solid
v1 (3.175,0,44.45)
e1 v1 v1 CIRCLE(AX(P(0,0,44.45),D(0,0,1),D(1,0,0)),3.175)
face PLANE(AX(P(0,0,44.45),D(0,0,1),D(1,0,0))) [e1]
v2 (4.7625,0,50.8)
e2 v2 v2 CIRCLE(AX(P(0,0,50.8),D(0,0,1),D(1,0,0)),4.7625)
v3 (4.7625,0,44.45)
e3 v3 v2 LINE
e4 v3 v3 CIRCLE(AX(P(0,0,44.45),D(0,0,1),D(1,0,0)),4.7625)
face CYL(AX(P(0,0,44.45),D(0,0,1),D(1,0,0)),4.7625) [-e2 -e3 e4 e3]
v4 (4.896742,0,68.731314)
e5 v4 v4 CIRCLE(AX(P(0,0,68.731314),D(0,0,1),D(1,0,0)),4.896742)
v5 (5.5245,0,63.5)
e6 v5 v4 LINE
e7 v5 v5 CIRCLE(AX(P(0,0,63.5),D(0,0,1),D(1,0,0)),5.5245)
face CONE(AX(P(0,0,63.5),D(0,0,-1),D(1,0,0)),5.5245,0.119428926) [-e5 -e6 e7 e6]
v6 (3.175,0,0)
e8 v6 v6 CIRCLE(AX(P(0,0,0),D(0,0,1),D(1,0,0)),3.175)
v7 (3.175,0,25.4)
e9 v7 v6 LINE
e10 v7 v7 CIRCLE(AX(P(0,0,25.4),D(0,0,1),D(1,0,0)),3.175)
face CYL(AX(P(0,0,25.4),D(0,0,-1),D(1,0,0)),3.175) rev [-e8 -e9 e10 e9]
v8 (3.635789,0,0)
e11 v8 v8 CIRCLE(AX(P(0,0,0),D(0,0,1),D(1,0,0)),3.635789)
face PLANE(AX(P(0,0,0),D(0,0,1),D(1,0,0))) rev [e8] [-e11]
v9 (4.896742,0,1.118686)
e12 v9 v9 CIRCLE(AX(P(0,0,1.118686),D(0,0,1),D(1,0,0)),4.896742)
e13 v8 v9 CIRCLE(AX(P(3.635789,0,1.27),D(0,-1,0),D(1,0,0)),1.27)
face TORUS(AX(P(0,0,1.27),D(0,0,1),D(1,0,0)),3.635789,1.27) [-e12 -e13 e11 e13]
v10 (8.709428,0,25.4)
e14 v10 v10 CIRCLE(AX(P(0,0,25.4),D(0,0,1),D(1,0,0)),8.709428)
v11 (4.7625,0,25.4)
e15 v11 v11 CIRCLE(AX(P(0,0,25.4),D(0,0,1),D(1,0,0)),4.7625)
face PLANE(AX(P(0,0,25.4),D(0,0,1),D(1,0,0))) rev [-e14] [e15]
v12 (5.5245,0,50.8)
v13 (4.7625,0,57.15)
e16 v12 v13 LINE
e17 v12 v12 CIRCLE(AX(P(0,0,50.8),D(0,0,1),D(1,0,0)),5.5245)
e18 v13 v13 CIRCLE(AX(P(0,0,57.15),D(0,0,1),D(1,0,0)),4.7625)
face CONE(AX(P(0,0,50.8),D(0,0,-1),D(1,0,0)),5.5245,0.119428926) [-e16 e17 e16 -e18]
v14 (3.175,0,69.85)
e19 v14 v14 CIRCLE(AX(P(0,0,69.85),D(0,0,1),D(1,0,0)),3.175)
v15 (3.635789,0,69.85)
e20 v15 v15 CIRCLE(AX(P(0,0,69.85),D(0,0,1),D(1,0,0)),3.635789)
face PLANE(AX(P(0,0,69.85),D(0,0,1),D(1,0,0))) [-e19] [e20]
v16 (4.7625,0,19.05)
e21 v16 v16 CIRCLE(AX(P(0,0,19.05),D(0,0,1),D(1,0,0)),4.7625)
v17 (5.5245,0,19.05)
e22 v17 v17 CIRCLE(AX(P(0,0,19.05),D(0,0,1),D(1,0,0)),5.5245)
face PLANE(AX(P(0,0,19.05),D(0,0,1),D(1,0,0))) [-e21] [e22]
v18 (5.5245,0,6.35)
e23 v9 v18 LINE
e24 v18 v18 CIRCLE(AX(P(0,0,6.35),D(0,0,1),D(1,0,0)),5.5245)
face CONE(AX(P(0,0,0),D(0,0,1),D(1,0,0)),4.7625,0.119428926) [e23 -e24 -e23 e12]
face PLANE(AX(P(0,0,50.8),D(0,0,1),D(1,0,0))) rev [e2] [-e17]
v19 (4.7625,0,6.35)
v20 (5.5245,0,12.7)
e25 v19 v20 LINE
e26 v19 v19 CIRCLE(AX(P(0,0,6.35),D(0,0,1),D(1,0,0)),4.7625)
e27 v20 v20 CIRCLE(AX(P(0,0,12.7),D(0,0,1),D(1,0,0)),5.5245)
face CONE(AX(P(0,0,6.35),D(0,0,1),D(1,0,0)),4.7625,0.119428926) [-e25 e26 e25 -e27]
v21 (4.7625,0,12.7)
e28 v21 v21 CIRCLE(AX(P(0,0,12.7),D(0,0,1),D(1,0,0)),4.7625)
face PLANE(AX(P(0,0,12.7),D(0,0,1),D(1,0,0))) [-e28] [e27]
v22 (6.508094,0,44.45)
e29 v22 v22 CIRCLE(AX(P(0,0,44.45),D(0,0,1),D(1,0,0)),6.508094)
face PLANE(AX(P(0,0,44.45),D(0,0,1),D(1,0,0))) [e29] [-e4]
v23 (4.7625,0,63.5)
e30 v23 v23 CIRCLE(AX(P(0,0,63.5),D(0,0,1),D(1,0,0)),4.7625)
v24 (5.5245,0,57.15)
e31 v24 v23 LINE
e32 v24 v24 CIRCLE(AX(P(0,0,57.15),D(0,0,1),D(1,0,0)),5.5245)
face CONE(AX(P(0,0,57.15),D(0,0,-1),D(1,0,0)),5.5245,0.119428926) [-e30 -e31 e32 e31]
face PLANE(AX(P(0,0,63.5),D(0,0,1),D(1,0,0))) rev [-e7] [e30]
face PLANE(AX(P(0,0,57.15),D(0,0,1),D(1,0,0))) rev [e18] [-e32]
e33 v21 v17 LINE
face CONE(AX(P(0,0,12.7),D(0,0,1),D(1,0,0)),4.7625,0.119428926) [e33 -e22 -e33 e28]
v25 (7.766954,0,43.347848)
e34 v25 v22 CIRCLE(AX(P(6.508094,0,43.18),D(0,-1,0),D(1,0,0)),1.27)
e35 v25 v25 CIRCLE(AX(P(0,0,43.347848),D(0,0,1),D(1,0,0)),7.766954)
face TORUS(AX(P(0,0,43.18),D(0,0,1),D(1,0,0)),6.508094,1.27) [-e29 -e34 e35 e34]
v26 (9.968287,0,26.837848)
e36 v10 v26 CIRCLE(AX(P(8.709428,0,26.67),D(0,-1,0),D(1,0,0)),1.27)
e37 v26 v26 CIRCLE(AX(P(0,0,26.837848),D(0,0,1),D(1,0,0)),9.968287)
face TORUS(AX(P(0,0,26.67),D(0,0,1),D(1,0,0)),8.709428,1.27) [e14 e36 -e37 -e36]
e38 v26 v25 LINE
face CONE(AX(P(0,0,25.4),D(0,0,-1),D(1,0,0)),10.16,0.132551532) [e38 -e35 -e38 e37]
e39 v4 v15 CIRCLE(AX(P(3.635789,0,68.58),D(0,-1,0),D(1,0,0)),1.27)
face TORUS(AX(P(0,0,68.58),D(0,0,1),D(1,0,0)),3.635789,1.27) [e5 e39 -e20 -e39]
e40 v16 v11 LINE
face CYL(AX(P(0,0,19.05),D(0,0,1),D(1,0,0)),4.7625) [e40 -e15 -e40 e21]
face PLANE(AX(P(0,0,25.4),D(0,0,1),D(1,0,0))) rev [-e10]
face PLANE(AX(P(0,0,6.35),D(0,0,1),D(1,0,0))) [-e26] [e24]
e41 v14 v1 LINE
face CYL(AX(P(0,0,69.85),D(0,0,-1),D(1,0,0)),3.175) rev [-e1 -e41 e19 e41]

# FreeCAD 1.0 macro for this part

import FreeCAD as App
import Part
import Sketcher
from FreeCAD import Vector
Q = App.Units.Quantity


def edges_at(feature, points):
    """Names of the edges that pass closest to the given points."""
    edges = feature.Shape.Edges
    near = lambda p: min(range(len(edges)), key=lambda i: edges[i].distToShape(Part.Vertex(*p))[0])
    return sorted({f"Edge{near(p) + 1}" for p in points})

doc = App.newDocument("Part")
params = doc.addObject("Spreadsheet::Sheet", "Params")
for row, (alias, value) in enumerate([
    ("sketch1_height", "1 in"),
    ("sketch1_width", "0.03 in"),
    ("sketch1_height2", "0.25 in"),
    ("sketch1_width2", "0.125 in"),
    ("sketch1_width3", "0.0625 in"),
    ("revolution_angle", "360 deg"),
    ("fillet_radius", "0.05 in"),
], start=1):
    params.set(f"A{row}", alias)
    params.set(f"B{row}", "=" + value)
    params.setAlias(f"B{row}", alias)

body = doc.addObject("PartDesign::Body", "Body")

# Sketch on XZ plane
sketch1 = body.newObject("Sketcher::SketchObject", "Sketch")
sketch1.AttachmentSupport = (doc.getObject("XZ_Plane"), [""])
sketch1.MapMode = "FlatFace"
sketch1.addGeometry([
    Part.LineSegment(Vector(0, 25.4, 0), Vector(3.2, 25.4, 0)),  # 0
    Part.LineSegment(Vector(3.2, 25.4, 0), Vector(3.2, 0, 0)),  # 1
    Part.LineSegment(Vector(3.2, 0, 0), Vector(4.8, 0, 0)),  # 2
    Part.LineSegment(Vector(4.8, 0, 0), Vector(5.5, 6.3, 0)),  # 3
    Part.LineSegment(Vector(5.5, 6.3, 0), Vector(4.8, 6.3, 0)),  # 4
    Part.LineSegment(Vector(4.8, 6.3, 0), Vector(5.5, 12.7, 0)),  # 5
    Part.LineSegment(Vector(5.5, 12.7, 0), Vector(4.8, 12.7, 0)),  # 6
    Part.LineSegment(Vector(4.8, 12.7, 0), Vector(5.5, 19.1, 0)),  # 7
    Part.LineSegment(Vector(5.5, 19.1, 0), Vector(4.8, 19.1, 0)),  # 8
    Part.LineSegment(Vector(4.8, 19.1, 0), Vector(4.8, 25.4, 0)),  # 9
    Part.LineSegment(Vector(4.8, 25.4, 0), Vector(10.2, 25.4, 0)),  # 10
    Part.LineSegment(Vector(10.2, 25.4, 0), Vector(7.6, 44.5, 0)),  # 11
    Part.LineSegment(Vector(7.6, 44.5, 0), Vector(4.8, 44.5, 0)),  # 12
    Part.LineSegment(Vector(4.8, 44.5, 0), Vector(4.8, 50.8, 0)),  # 13
    Part.LineSegment(Vector(4.8, 50.8, 0), Vector(5.5, 50.8, 0)),  # 14
    Part.LineSegment(Vector(5.5, 50.8, 0), Vector(4.8, 57.1, 0)),  # 15
    Part.LineSegment(Vector(4.8, 57.1, 0), Vector(5.5, 57.1, 0)),  # 16
    Part.LineSegment(Vector(5.5, 57.1, 0), Vector(4.8, 63.5, 0)),  # 17
    Part.LineSegment(Vector(4.8, 63.5, 0), Vector(5.5, 63.5, 0)),  # 18
    Part.LineSegment(Vector(5.5, 63.5, 0), Vector(4.8, 69.8, 0)),  # 19
    Part.LineSegment(Vector(4.8, 69.8, 0), Vector(3.2, 69.8, 0)),  # 20
    Part.LineSegment(Vector(3.2, 69.8, 0), Vector(3.2, 44.5, 0)),  # 21
    Part.LineSegment(Vector(3.2, 44.5, 0), Vector(0, 44.5, 0)),  # 22
    Part.LineSegment(Vector(0, 44.5, 0), Vector(0, 25.4, 0)),  # 23
], False)
sketch1.addConstraint([
    Sketcher.Constraint("Coincident", 0, 2, 1, 1),
    Sketcher.Constraint("Coincident", 1, 2, 2, 1),
    Sketcher.Constraint("Coincident", 2, 2, 3, 1),
    Sketcher.Constraint("Coincident", 3, 2, 4, 1),
    Sketcher.Constraint("Coincident", 4, 2, 5, 1),
    Sketcher.Constraint("Coincident", 5, 2, 6, 1),
    Sketcher.Constraint("Coincident", 6, 2, 7, 1),
    Sketcher.Constraint("Coincident", 7, 2, 8, 1),
    Sketcher.Constraint("Coincident", 8, 2, 9, 1),
    Sketcher.Constraint("Coincident", 9, 2, 10, 1),
    Sketcher.Constraint("Coincident", 10, 2, 11, 1),
    Sketcher.Constraint("Coincident", 11, 2, 12, 1),
    Sketcher.Constraint("Coincident", 12, 2, 13, 1),
    Sketcher.Constraint("Coincident", 13, 2, 14, 1),
    Sketcher.Constraint("Coincident", 14, 2, 15, 1),
    Sketcher.Constraint("Coincident", 15, 2, 16, 1),
    Sketcher.Constraint("Coincident", 16, 2, 17, 1),
    Sketcher.Constraint("Coincident", 17, 2, 18, 1),
    Sketcher.Constraint("Coincident", 18, 2, 19, 1),
    Sketcher.Constraint("Coincident", 19, 2, 20, 1),
    Sketcher.Constraint("Coincident", 20, 2, 21, 1),
    Sketcher.Constraint("Coincident", 21, 2, 22, 1),
    Sketcher.Constraint("Coincident", 22, 2, 23, 1),
    Sketcher.Constraint("Coincident", 23, 2, 0, 1),
    Sketcher.Constraint("Horizontal", 0),
    Sketcher.Constraint("Vertical", 1),
    Sketcher.Constraint("Horizontal", 2),
    Sketcher.Constraint("Horizontal", 4),
    Sketcher.Constraint("Horizontal", 6),
    Sketcher.Constraint("Horizontal", 8),
    Sketcher.Constraint("Vertical", 9),
    Sketcher.Constraint("Horizontal", 10),
    Sketcher.Constraint("Horizontal", 12),
    Sketcher.Constraint("Vertical", 13),
    Sketcher.Constraint("Horizontal", 14),
    Sketcher.Constraint("Horizontal", 16),
    Sketcher.Constraint("Horizontal", 18),
    Sketcher.Constraint("Horizontal", 20),
    Sketcher.Constraint("Vertical", 21),
    Sketcher.Constraint("Horizontal", 22),
    Sketcher.Constraint("Vertical", 23),
    Sketcher.Constraint("PointOnObject", 1, 2, -1),
    Sketcher.Constraint("PointOnObject", 22, 2, -2),
    Sketcher.Constraint("Parallel", 3, 5),
    Sketcher.Constraint("Parallel", 5, 7),
    Sketcher.Constraint("Parallel", 15, 17),
    Sketcher.Constraint("Parallel", 17, 19),
    Sketcher.Constraint("Horizontal", 0, 2, 9, 2),
    Sketcher.Constraint("Horizontal", 12, 2, 21, 2),
    Sketcher.Constraint("Vertical", 2, 2, 4, 2),
    Sketcher.Constraint("Vertical", 3, 2, 5, 2),
    Sketcher.Constraint("Vertical", 4, 2, 6, 2),
    Sketcher.Constraint("Vertical", 5, 2, 7, 2),
    Sketcher.Constraint("Vertical", 6, 2, 8, 2),
    Sketcher.Constraint("Vertical", 9, 2, 12, 2),
    Sketcher.Constraint("Vertical", 7, 2, 14, 2),
    Sketcher.Constraint("Vertical", 13, 2, 15, 2),
    Sketcher.Constraint("Vertical", 14, 2, 16, 2),
    Sketcher.Constraint("Vertical", 15, 2, 17, 2),
    Sketcher.Constraint("Vertical", 16, 2, 18, 2),
    Sketcher.Constraint("Vertical", 17, 2, 19, 2),
    Sketcher.Constraint("Vertical", 1, 2, 20, 2),
    Sketcher.Constraint("Equal", 9, 13),
    Sketcher.Constraint("Equal", 1, 21),
    Sketcher.Constraint("DistanceY", 1, 2, 1, 1, Q("1 in")),
    Sketcher.Constraint("DistanceY", -1, 1, 13, 2, Q("2 in")),
    Sketcher.Constraint("DistanceX", 4, 2, 4, 1, Q("0.03 in")),
    Sketcher.Constraint("DistanceY", 9, 1, 9, 2, Q("0.25 in")),
    Sketcher.Constraint("DistanceX", -1, 1, 10, 2, Q("0.4 in")),
    Sketcher.Constraint("DistanceX", -1, 1, 11, 2, Q("0.3 in")),
    Sketcher.Constraint("DistanceX", 0, 1, 0, 2, Q("0.125 in")),
    Sketcher.Constraint("DistanceX", 2, 1, 2, 2, Q("0.0625 in")),
])
sketch1.setExpression("Constraints[64]", "Params.sketch1_height")
sketch1.setExpression("Constraints[66]", "Params.sketch1_width")
sketch1.setExpression("Constraints[67]", "Params.sketch1_height2")
sketch1.setExpression("Constraints[70]", "Params.sketch1_width2")
sketch1.setExpression("Constraints[71]", "Params.sketch1_width3")
revolution = body.newObject("PartDesign::Revolution", "Revolution")
revolution.Profile = sketch1
revolution.ReferenceAxis = (sketch1, ["V_Axis"])
revolution.setExpression("Angle", "Params.revolution_angle")
doc.recompute()

fillet = body.newObject("PartDesign::Fillet", "Fillet")
fillet.Base = (revolution, edges_at(revolution, [
    (-10.16, 0, 25.4),
    (-7.62, 0, 44.45),
    (-4.763, 0, 69.85),
    (-4.763, 0, 0),
]))
fillet.setExpression("Radius", "Params.fillet_radius")

doc.recompute()
